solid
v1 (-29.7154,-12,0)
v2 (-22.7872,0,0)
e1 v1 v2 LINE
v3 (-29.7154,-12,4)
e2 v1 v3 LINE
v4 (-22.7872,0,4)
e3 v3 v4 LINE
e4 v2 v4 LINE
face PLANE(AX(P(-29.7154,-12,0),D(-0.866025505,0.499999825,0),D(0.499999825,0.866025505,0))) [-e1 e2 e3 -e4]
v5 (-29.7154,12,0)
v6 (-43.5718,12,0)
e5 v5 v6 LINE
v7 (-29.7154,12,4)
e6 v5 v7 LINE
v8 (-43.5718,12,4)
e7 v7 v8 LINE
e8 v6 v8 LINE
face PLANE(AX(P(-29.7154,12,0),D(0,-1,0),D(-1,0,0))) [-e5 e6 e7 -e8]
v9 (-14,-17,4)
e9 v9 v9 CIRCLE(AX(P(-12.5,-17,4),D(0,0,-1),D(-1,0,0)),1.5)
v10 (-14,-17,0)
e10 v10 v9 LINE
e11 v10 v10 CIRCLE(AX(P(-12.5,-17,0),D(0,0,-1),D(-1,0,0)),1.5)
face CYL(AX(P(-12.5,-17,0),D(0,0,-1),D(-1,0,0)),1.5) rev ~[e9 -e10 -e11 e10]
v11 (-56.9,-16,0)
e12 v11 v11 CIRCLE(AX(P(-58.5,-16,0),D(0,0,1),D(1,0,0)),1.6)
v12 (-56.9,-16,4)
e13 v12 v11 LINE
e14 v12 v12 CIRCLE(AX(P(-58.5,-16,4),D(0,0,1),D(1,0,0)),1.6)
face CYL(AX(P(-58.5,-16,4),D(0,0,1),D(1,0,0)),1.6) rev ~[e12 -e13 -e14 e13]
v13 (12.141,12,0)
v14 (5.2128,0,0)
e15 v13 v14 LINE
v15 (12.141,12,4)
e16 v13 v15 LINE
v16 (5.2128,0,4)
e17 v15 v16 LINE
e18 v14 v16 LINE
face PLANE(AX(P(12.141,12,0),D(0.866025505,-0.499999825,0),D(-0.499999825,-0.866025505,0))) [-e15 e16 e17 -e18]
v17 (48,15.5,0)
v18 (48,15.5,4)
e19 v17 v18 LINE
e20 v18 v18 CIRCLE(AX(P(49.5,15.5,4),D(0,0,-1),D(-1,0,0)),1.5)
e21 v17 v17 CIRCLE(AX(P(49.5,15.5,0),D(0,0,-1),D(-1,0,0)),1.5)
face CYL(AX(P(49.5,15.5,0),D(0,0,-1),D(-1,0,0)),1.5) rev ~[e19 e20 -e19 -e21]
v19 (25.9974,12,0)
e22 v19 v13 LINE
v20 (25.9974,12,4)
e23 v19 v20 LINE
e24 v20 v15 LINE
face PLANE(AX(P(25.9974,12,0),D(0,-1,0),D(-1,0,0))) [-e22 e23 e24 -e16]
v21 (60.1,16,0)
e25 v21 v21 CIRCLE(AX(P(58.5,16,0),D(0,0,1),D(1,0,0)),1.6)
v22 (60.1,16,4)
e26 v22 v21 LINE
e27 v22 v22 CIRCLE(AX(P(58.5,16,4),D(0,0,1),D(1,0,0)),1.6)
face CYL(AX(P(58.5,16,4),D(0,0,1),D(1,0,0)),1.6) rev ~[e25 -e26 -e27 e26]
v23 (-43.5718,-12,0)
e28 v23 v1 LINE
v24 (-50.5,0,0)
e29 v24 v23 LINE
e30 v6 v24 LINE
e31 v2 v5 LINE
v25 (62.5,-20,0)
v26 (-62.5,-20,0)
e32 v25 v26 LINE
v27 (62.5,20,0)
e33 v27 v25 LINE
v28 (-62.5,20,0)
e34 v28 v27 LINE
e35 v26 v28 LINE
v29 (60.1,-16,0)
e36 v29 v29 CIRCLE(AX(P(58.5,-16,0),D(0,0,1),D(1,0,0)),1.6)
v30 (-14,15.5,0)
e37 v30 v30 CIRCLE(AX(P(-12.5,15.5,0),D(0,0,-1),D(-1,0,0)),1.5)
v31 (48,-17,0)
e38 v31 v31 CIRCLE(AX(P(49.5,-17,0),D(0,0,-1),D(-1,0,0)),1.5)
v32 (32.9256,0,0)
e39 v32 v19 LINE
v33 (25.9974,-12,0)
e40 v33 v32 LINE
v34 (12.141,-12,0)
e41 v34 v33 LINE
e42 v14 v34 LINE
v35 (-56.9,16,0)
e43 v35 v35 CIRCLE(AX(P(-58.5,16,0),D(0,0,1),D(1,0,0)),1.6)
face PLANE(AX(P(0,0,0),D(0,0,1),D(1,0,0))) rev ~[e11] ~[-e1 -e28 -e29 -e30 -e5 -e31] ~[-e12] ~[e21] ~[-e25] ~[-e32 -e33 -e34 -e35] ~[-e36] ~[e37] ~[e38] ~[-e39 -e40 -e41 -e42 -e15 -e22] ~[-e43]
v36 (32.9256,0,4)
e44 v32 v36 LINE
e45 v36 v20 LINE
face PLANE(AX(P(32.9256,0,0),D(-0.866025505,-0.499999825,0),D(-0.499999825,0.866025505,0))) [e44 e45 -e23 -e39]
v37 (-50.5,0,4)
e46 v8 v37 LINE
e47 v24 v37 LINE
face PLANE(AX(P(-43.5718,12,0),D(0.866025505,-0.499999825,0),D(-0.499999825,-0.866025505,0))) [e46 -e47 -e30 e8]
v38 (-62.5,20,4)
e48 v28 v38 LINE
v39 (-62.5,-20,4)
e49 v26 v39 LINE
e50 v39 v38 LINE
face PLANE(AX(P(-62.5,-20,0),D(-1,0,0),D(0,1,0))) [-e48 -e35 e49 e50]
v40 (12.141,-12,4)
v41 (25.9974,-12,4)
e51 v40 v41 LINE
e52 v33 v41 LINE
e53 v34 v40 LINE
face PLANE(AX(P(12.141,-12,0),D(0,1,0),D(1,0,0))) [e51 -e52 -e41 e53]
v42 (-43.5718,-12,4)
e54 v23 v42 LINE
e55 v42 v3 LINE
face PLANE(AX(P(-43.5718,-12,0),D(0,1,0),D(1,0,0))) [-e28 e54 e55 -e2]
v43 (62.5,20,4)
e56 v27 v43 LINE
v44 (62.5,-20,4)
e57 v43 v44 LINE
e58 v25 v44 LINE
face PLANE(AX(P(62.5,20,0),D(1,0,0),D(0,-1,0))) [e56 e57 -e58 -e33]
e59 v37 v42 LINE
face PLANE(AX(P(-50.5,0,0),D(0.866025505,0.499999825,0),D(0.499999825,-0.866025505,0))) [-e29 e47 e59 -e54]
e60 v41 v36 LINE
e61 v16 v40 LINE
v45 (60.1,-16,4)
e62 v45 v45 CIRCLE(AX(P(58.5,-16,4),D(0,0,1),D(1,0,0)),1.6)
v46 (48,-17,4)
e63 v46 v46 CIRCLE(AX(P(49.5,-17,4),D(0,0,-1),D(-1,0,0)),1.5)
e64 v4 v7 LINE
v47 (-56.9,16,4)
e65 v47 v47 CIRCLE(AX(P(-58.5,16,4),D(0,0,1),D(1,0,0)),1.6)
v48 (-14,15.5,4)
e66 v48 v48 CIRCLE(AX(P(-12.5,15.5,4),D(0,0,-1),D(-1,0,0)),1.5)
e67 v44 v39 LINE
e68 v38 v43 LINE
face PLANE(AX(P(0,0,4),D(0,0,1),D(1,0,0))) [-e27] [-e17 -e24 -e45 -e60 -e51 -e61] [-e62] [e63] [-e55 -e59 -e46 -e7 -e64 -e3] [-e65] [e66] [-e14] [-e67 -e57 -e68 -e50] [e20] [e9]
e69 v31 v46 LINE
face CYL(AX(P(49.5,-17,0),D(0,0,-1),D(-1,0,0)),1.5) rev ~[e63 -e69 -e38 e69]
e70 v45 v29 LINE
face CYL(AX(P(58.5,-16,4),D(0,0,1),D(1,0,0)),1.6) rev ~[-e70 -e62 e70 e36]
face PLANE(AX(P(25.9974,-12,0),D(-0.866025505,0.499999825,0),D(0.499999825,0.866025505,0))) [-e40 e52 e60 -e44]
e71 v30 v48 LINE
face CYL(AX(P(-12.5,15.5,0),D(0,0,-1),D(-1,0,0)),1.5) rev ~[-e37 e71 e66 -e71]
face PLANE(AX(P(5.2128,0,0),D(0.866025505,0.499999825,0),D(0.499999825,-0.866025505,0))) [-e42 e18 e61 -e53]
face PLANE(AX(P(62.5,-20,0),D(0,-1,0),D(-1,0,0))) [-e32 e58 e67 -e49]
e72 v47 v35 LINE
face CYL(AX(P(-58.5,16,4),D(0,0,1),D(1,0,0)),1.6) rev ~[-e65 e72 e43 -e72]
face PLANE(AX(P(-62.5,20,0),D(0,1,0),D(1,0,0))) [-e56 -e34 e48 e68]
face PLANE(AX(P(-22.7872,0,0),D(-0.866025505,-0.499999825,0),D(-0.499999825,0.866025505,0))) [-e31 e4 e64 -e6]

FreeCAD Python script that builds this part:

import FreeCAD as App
import Part
import Sketcher
Q = App.Units.Quantity


def add_polygon(sketch, points):
    """Adds a closed chain of lines whose ends are joined by coincident constraints."""
    first, n = sketch.GeometryCount, len(points)
    for a, b in zip(points, points[1:] + points[:1]):
        sketch.addGeometry(Part.LineSegment(App.Vector(*a, 0), App.Vector(*b, 0)), False)
    for i in range(n):
        sketch.addConstraint(Sketcher.Constraint("Coincident", first + i, 2, first + (i + 1) % n, 1))

doc = App.newDocument("Part")
params = doc.addObject("Spreadsheet::Sheet", "Params")
for row, (alias, value) in enumerate([
    ("sketch1_width", "125 mm"),
    ("sketch1_height", "40 mm"),
    ("pad1_length", "4 mm"),
    ("sketch2_diameter", "3.2 mm"),
    ("pocket1_length", "4 mm"),
    ("sketch3_diameter", "3 mm"),
    ("pocket2_length", "4 mm"),
], start=1):
    params.set(f"A{row}", alias)
    params.set(f"B{row}", "=" + value)
    params.setAlias(f"B{row}", alias)

body = doc.addObject("PartDesign::Body", "Body")

# Sketch on XY plane
sketch1 = body.newObject("Sketcher::SketchObject", "Sketch")
sketch1.AttachmentSupport = (doc.getObject("XY_Plane"), [""])
sketch1.MapMode = "FlatFace"
add_polygon(sketch1, [(62, 20), (-62, 20), (-62, -20), (62, -20)])  # lines 0-3
sketch1.addConstraint([
    Sketcher.Constraint("Horizontal", 0),
    Sketcher.Constraint("Vertical", 1),
    Sketcher.Constraint("Horizontal", 2),
    Sketcher.Constraint("Vertical", 3),
    Sketcher.Constraint("Symmetric", 0, 2, 2, 2, -1, 1),
    Sketcher.Constraint("DistanceX", 0, 2, 0, 1, 125.0),
    Sketcher.Constraint("DistanceY", 1, 2, 1, 1, 40.0),
])
sketch1.setExpression("Constraints[9]", "Params.sketch1_width")
sketch1.setExpression("Constraints[10]", "Params.sketch1_height")
pad1 = body.newObject("PartDesign::Pad", "Pad")
pad1.Profile = sketch1
pad1.setExpression("Length", "Params.pad1_length")

# Sketch on XY plane
sketch2 = body.newObject("Sketcher::SketchObject", "Sketch001")
sketch2.AttachmentSupport = (doc.getObject("XY_Plane"), [""])
sketch2.MapMode = "FlatFace"
sketch2.AttachmentOffset = App.Placement(App.Vector(0, 0, 4), App.Rotation())
sketch2.addGeometry([
    Part.Circle(App.Vector(-58.5, 16, 0), App.Vector(0, 0, 1), 1.6),
    Part.Circle(App.Vector(58.5, 16, 0), App.Vector(0, 0, 1), 1.6),
    Part.Circle(App.Vector(-58.5, -16, 0), App.Vector(0, 0, 1), 1.6),
    Part.Circle(App.Vector(58.5, -16, 0), App.Vector(0, 0, 1), 1.6),
], False)
sketch2.addConstraint([
    Sketcher.Constraint("Equal", 0, 1),
    Sketcher.Constraint("Equal", 1, 2),
    Sketcher.Constraint("Equal", 2, 3),
    Sketcher.Constraint("Symmetric", 1, 3, 2, 3, -1, 1),
    Sketcher.Constraint("Symmetric", 0, 3, 3, 3, -1, 1),
    Sketcher.Constraint("Symmetric", 0, 3, 1, 3, -2),
    Sketcher.Constraint("Diameter", 0, 3.2),
    Sketcher.Constraint("DistanceY", -1, 1, 0, 3, 16.0),
    Sketcher.Constraint("DistanceX", 0, 3, 1, 3, 117.0),
])
sketch2.setExpression("Constraints[6]", "Params.sketch2_diameter")
pocket1 = body.newObject("PartDesign::Pocket", "Pocket")
pocket1.Profile = sketch2
pocket1.setExpression("Length", "Params.pocket1_length")

# Sketch on XY plane
sketch3 = body.newObject("Sketcher::SketchObject", "Sketch002")
sketch3.AttachmentSupport = (doc.getObject("XY_Plane"), [""])
sketch3.MapMode = "FlatFace"
sketch3.addGeometry(Part.Circle(App.Vector(49.5, 15.5, 0), App.Vector(0, 0, 1), 1.5), False)  # 0
sketch3.addGeometry(Part.Circle(App.Vector(49.5, -17, 0), App.Vector(0, 0, 1), 1.5), False)  # 1
sketch3.addGeometry(Part.Circle(App.Vector(-12.5, 15.5, 0), App.Vector(0, 0, 1), 1.5), False)  # 2
sketch3.addGeometry(Part.Circle(App.Vector(-12.5, -17, 0), App.Vector(0, 0, 1), 1.5), False)  # 3
add_polygon(sketch3, [(-22.8, 0), (-29.7, -12), (-43.6, -12), (-50.5, 0), (-43.6, 12), (-29.7, 12)])  # lines 4-9
add_polygon(sketch3, [(12.1, -12), (5.2, 0), (12.1, 12), (26, 12), (32.9, 0), (26, -12)])  # lines 10-15
sketch3.addConstraint([
    Sketcher.Constraint("Horizontal", 5),
    Sketcher.Constraint("Horizontal", 8),
    Sketcher.Constraint("Horizontal", 12),
    Sketcher.Constraint("Horizontal", 15),
    Sketcher.Constraint("Equal", 0, 1),
    Sketcher.Constraint("Equal", 1, 2),
    Sketcher.Constraint("Equal", 2, 3),
    Sketcher.Constraint("Symmetric", 5, 2, 7, 2, -1),
    Sketcher.Constraint("Symmetric", 12, 2, 14, 2, -1),
    Sketcher.Constraint("PointOnObject", 6, 2, -1),
    Sketcher.Constraint("PointOnObject", 9, 2, -1),
    Sketcher.Constraint("PointOnObject", 10, 2, -1),
    Sketcher.Constraint("PointOnObject", 13, 2, -1),
    Sketcher.Constraint("Parallel", 4, 7),
    Sketcher.Constraint("Parallel", 6, 9),
    Sketcher.Constraint("Parallel", 9, 10),
    Sketcher.Constraint("Parallel", 7, 11),
    Sketcher.Constraint("Parallel", 10, 13),
    Sketcher.Constraint("Horizontal", 0, 3, 2, 3),
    Sketcher.Constraint("Horizontal", 1, 3, 3, 3),
    Sketcher.Constraint("Horizontal", 8, 2, 11, 2),
    Sketcher.Constraint("Vertical", 0, 3, 1, 3),
    Sketcher.Constraint("Vertical", 2, 3, 3, 3),
    Sketcher.Constraint("Equal", 8, 12),
    Sketcher.Constraint("Diameter", 0, 3.0),
    Sketcher.Constraint("DistanceY", 4, 2, -1, 1, 12.0),
    Sketcher.Constraint("DistanceX", 9, 2, 10, 2, 28.0),
    Sketcher.Constraint("Angle", 4, Q("-120 deg")),
    Sketcher.Constraint("DistanceY", 1, 3, -1, 1, 17.0),
    Sketcher.Constraint("DistanceX", 2, 3, 0, 3, 62.0),
    Sketcher.Constraint("DistanceX", 6, 2, 2, 3, 38.0),
    Sketcher.Constraint("DistanceX", -1, 1, 0, 3, 49.5),
    Sketcher.Constraint("DistanceY", -1, 1, 0, 3, 15.5),
    Sketcher.Constraint("DistanceX", 5, 2, 5, 1, 13.8564),
])
sketch3.setExpression("Constraints[36]", "Params.sketch3_diameter")
pocket2 = body.newObject("PartDesign::Pocket", "Pocket001")
pocket2.Profile = sketch3
pocket2.setExpression("Length", "Params.pocket2_length")
pocket2.Reversed = True

doc.recompute()
